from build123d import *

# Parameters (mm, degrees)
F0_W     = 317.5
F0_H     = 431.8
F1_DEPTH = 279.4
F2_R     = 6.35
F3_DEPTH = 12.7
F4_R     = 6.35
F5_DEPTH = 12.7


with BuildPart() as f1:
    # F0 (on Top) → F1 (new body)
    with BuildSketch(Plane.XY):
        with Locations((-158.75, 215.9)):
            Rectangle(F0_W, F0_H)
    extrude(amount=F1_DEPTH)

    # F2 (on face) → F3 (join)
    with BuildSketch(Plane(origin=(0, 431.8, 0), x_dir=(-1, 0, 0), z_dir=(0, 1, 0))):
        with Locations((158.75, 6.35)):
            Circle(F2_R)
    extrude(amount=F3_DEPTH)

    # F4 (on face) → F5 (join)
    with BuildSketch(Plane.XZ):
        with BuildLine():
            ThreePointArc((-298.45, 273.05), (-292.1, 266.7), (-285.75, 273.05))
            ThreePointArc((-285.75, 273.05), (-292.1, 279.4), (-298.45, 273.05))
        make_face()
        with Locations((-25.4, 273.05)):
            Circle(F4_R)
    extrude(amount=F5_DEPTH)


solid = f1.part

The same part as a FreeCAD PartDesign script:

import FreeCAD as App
import Part
import Sketcher
from FreeCAD import Vector
Q = App.Units.Quantity


def add_polygon(sketch, points):
    """Adds a closed chain of lines whose ends are joined by coincident constraints."""
    first, n = sketch.GeometryCount, len(points)
    for a, b in zip(points, points[1:] + points[:1]):
        sketch.addGeometry(Part.LineSegment(App.Vector(*a, 0), App.Vector(*b, 0)), False)
    for i in range(n):
        sketch.addConstraint(Sketcher.Constraint("Coincident", first + i, 2, first + (i + 1) % n, 1))

doc = App.newDocument("Part")
body = doc.addObject("PartDesign::Body", "Body")

# Sketch on XY plane
sketch1 = body.newObject("Sketcher::SketchObject", "Sketch")
sketch1.AttachmentSupport = (doc.getObject("XY_Plane"), [""])
sketch1.MapMode = "FlatFace"
add_polygon(sketch1, [(-318, 432), (-318, 0), (0, 0), (0, 432)])  # lines 0-3
sketch1.addConstraint([
    Sketcher.Constraint("Vertical", 0),
    Sketcher.Constraint("Horizontal", 1),
    Sketcher.Constraint("Vertical", 2),
    Sketcher.Constraint("Horizontal", 3),
    Sketcher.Constraint("Coincident", 1, 2, -1, 1),
    Sketcher.Constraint("DistanceY", 0, 2, 0, 1, Q("17 in")),
    Sketcher.Constraint("DistanceX", 1, 1, 1, 2, Q("12.5 in")),
])
pad1 = body.newObject("PartDesign::Pad", "Pad")
pad1.Profile = sketch1
pad1.Length = Q("11 in")

# Sketch on XZ plane
sketch2 = body.newObject("Sketcher::SketchObject", "Sketch001")
sketch2.AttachmentSupport = (doc.getObject("XZ_Plane"), [""])
sketch2.MapMode = "FlatFace"
sketch2.AttachmentOffset = App.Placement(Vector(0, 0, -17 * 25.4), App.Rotation())
sketch2.addGeometry(Part.Circle(Vector(-159, 6, 0), Vector(0, 0, 1), 6), False)
sketch2.addConstraint([
    Sketcher.Constraint("Diameter", 0, Q("0.5 in")),
    Sketcher.Constraint("DistanceX", 0, 3, -1, 1, Q("6.25 in")),
    Sketcher.Constraint("DistanceY", -1, 1, 0, 3, Q("0.25 in")),
])
pad2 = body.newObject("PartDesign::Pad", "Pad001")
pad2.Profile = sketch2
pad2.Length = Q("0.5 in")
pad2.Reversed = True

# Sketch on XZ plane
sketch3 = body.newObject("Sketcher::SketchObject", "Sketch002")
sketch3.AttachmentSupport = (doc.getObject("XZ_Plane"), [""])
sketch3.MapMode = "FlatFace"
sketch3.addGeometry([
    Part.Circle(Vector(-292, 273, 0), Vector(0, 0, 1), 6),
    Part.Circle(Vector(-25, 273, 0), Vector(0, 0, 1), 6),
], False)
sketch3.addConstraint([
    Sketcher.Constraint("Equal", 0, 1),
    Sketcher.Constraint("Horizontal", 0, 3, 1, 3),
    Sketcher.Constraint("Diameter", 0, Q("0.5 in")),
    Sketcher.Constraint("DistanceX", 1, 3, -1, 1, Q("1 in")),
    Sketcher.Constraint("DistanceX", 0, 3, -1, 1, Q("11.5 in")),
    Sketcher.Constraint("DistanceY", -1, 1, 0, 3, Q("10.75 in")),
])
pad3 = body.newObject("PartDesign::Pad", "Pad002")
pad3.Profile = sketch3
pad3.Length = Q("0.5 in")

doc.recompute()
